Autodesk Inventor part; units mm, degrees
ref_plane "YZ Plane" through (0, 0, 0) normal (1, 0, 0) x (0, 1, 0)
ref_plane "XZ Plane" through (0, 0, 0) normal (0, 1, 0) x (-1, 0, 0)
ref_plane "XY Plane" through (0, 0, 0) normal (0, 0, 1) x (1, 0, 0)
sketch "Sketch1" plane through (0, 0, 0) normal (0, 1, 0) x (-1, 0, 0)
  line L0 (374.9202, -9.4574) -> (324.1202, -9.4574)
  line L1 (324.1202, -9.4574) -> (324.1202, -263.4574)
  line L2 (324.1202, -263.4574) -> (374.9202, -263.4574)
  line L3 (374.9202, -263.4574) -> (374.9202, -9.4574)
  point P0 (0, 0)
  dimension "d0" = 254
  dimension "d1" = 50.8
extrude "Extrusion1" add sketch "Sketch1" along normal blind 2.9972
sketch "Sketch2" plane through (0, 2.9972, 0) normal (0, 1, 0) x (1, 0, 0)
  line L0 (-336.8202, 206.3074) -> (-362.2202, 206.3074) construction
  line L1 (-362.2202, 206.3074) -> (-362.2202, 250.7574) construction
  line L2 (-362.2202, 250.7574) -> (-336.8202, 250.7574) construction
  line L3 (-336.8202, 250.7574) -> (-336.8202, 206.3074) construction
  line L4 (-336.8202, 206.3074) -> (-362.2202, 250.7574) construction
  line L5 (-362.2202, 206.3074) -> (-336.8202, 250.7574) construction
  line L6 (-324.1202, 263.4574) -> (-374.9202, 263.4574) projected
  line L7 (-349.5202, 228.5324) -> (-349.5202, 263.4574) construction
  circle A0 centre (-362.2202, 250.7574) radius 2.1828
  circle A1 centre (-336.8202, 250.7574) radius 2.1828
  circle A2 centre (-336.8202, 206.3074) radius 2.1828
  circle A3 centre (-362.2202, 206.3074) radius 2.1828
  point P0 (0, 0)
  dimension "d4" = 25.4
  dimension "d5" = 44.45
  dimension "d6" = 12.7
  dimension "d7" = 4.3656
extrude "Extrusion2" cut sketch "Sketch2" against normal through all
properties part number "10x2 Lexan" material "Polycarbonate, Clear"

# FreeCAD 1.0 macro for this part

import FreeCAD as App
import Part
import Sketcher
Q = App.Units.Quantity

doc = App.newDocument("Part")
body = doc.addObject("PartDesign::Body", "Body")

# Sketch on XZ plane
sketch1 = body.newObject("Sketcher::SketchObject", "Sketch")
sketch1.AttachmentSupport = (doc.getObject("XZ_Plane"), [""])
sketch1.MapMode = "FlatFace"
sketch1.addGeometry([
    Part.LineSegment(App.Vector(-374.9202, -263.4574, 0), App.Vector(-374.9202, -9.4574, 0)),
    Part.LineSegment(App.Vector(-374.9202, -9.4574, 0), App.Vector(-324.1202, -9.4574, 0)),
    Part.LineSegment(App.Vector(-324.1202, -9.4574, 0), App.Vector(-324.1202, -263.4574, 0)),
    Part.LineSegment(App.Vector(-324.1202, -263.4574, 0), App.Vector(-374.9202, -263.4574, 0)),
], False)
sketch1.addConstraint([
    Sketcher.Constraint("Coincident", 0, 2, 1, 1),
    Sketcher.Constraint("Coincident", 1, 2, 2, 1),
    Sketcher.Constraint("Coincident", 2, 2, 3, 1),
    Sketcher.Constraint("Coincident", 3, 2, 0, 1),
    Sketcher.Constraint("Vertical", 0),
    Sketcher.Constraint("Horizontal", 1),
    Sketcher.Constraint("Vertical", 2),
    Sketcher.Constraint("Horizontal", 3),
    Sketcher.Constraint("DistanceX", 1, 1, 1, 2, Q("2 in")),
    Sketcher.Constraint("DistanceY", 0, 1, 0, 2, Q("10 in")),
    Sketcher.Constraint("DistanceX", 0, 2, -1, 1, 374.9202),
    Sketcher.Constraint("DistanceY", 0, 2, -1, 1, 9.4574),
])
pad1 = body.newObject("PartDesign::Pad", "Pad")
pad1.Profile = sketch1
pad1.Length = Q("0.118 in")
pad1.Reversed = True

# Sketch on XZ plane
sketch2 = body.newObject("Sketcher::SketchObject", "Sketch001")
sketch2.AttachmentSupport = (doc.getObject("XZ_Plane"), [""])
sketch2.MapMode = "FlatFace"
sketch2.AttachmentOffset = App.Placement(App.Vector(0, 0, -0.118 * 25.4), App.Rotation())
sketch2.addGeometry([
    Part.Circle(App.Vector(-362.2202, -250.7574, 0), App.Vector(0, 0, 1), 2.1828),
    Part.Circle(App.Vector(-336.8202, -250.7574, 0), App.Vector(0, 0, 1), 2.1828),
    Part.Circle(App.Vector(-336.8202, -206.3074, 0), App.Vector(0, 0, 1), 2.1828),
    Part.Circle(App.Vector(-362.2202, -206.3074, 0), App.Vector(0, 0, 1), 2.1828),
], False)
sketch2.addConstraint([
    Sketcher.Constraint("Equal", 0, 1),
    Sketcher.Constraint("Equal", 1, 2),
    Sketcher.Constraint("Equal", 2, 3),
    Sketcher.Constraint("Horizontal", 0, 3, 1, 3),
    Sketcher.Constraint("Horizontal", 2, 3, 3, 3),
    Sketcher.Constraint("Vertical", 1, 3, 2, 3),
    Sketcher.Constraint("Vertical", 0, 3, 3, 3),
    Sketcher.Constraint("Diameter", 0, Q("0.171874 in")),
    Sketcher.Constraint("DistanceX", 0, 3, 1, 3, Q("1 in")),
    Sketcher.Constraint("DistanceY", 1, 3, 2, 3, Q("1.75 in")),
    Sketcher.Constraint("DistanceX", 0, 3, -1, 1, 362.2202),
    Sketcher.Constraint("DistanceY", 0, 3, -1, 1, 250.7574),
])
pocket1 = body.newObject("PartDesign::Pocket", "Pocket")
pocket1.Profile = sketch2
pocket1.Type = "ThroughAll"
pocket1.Reversed = True

doc.recompute()
